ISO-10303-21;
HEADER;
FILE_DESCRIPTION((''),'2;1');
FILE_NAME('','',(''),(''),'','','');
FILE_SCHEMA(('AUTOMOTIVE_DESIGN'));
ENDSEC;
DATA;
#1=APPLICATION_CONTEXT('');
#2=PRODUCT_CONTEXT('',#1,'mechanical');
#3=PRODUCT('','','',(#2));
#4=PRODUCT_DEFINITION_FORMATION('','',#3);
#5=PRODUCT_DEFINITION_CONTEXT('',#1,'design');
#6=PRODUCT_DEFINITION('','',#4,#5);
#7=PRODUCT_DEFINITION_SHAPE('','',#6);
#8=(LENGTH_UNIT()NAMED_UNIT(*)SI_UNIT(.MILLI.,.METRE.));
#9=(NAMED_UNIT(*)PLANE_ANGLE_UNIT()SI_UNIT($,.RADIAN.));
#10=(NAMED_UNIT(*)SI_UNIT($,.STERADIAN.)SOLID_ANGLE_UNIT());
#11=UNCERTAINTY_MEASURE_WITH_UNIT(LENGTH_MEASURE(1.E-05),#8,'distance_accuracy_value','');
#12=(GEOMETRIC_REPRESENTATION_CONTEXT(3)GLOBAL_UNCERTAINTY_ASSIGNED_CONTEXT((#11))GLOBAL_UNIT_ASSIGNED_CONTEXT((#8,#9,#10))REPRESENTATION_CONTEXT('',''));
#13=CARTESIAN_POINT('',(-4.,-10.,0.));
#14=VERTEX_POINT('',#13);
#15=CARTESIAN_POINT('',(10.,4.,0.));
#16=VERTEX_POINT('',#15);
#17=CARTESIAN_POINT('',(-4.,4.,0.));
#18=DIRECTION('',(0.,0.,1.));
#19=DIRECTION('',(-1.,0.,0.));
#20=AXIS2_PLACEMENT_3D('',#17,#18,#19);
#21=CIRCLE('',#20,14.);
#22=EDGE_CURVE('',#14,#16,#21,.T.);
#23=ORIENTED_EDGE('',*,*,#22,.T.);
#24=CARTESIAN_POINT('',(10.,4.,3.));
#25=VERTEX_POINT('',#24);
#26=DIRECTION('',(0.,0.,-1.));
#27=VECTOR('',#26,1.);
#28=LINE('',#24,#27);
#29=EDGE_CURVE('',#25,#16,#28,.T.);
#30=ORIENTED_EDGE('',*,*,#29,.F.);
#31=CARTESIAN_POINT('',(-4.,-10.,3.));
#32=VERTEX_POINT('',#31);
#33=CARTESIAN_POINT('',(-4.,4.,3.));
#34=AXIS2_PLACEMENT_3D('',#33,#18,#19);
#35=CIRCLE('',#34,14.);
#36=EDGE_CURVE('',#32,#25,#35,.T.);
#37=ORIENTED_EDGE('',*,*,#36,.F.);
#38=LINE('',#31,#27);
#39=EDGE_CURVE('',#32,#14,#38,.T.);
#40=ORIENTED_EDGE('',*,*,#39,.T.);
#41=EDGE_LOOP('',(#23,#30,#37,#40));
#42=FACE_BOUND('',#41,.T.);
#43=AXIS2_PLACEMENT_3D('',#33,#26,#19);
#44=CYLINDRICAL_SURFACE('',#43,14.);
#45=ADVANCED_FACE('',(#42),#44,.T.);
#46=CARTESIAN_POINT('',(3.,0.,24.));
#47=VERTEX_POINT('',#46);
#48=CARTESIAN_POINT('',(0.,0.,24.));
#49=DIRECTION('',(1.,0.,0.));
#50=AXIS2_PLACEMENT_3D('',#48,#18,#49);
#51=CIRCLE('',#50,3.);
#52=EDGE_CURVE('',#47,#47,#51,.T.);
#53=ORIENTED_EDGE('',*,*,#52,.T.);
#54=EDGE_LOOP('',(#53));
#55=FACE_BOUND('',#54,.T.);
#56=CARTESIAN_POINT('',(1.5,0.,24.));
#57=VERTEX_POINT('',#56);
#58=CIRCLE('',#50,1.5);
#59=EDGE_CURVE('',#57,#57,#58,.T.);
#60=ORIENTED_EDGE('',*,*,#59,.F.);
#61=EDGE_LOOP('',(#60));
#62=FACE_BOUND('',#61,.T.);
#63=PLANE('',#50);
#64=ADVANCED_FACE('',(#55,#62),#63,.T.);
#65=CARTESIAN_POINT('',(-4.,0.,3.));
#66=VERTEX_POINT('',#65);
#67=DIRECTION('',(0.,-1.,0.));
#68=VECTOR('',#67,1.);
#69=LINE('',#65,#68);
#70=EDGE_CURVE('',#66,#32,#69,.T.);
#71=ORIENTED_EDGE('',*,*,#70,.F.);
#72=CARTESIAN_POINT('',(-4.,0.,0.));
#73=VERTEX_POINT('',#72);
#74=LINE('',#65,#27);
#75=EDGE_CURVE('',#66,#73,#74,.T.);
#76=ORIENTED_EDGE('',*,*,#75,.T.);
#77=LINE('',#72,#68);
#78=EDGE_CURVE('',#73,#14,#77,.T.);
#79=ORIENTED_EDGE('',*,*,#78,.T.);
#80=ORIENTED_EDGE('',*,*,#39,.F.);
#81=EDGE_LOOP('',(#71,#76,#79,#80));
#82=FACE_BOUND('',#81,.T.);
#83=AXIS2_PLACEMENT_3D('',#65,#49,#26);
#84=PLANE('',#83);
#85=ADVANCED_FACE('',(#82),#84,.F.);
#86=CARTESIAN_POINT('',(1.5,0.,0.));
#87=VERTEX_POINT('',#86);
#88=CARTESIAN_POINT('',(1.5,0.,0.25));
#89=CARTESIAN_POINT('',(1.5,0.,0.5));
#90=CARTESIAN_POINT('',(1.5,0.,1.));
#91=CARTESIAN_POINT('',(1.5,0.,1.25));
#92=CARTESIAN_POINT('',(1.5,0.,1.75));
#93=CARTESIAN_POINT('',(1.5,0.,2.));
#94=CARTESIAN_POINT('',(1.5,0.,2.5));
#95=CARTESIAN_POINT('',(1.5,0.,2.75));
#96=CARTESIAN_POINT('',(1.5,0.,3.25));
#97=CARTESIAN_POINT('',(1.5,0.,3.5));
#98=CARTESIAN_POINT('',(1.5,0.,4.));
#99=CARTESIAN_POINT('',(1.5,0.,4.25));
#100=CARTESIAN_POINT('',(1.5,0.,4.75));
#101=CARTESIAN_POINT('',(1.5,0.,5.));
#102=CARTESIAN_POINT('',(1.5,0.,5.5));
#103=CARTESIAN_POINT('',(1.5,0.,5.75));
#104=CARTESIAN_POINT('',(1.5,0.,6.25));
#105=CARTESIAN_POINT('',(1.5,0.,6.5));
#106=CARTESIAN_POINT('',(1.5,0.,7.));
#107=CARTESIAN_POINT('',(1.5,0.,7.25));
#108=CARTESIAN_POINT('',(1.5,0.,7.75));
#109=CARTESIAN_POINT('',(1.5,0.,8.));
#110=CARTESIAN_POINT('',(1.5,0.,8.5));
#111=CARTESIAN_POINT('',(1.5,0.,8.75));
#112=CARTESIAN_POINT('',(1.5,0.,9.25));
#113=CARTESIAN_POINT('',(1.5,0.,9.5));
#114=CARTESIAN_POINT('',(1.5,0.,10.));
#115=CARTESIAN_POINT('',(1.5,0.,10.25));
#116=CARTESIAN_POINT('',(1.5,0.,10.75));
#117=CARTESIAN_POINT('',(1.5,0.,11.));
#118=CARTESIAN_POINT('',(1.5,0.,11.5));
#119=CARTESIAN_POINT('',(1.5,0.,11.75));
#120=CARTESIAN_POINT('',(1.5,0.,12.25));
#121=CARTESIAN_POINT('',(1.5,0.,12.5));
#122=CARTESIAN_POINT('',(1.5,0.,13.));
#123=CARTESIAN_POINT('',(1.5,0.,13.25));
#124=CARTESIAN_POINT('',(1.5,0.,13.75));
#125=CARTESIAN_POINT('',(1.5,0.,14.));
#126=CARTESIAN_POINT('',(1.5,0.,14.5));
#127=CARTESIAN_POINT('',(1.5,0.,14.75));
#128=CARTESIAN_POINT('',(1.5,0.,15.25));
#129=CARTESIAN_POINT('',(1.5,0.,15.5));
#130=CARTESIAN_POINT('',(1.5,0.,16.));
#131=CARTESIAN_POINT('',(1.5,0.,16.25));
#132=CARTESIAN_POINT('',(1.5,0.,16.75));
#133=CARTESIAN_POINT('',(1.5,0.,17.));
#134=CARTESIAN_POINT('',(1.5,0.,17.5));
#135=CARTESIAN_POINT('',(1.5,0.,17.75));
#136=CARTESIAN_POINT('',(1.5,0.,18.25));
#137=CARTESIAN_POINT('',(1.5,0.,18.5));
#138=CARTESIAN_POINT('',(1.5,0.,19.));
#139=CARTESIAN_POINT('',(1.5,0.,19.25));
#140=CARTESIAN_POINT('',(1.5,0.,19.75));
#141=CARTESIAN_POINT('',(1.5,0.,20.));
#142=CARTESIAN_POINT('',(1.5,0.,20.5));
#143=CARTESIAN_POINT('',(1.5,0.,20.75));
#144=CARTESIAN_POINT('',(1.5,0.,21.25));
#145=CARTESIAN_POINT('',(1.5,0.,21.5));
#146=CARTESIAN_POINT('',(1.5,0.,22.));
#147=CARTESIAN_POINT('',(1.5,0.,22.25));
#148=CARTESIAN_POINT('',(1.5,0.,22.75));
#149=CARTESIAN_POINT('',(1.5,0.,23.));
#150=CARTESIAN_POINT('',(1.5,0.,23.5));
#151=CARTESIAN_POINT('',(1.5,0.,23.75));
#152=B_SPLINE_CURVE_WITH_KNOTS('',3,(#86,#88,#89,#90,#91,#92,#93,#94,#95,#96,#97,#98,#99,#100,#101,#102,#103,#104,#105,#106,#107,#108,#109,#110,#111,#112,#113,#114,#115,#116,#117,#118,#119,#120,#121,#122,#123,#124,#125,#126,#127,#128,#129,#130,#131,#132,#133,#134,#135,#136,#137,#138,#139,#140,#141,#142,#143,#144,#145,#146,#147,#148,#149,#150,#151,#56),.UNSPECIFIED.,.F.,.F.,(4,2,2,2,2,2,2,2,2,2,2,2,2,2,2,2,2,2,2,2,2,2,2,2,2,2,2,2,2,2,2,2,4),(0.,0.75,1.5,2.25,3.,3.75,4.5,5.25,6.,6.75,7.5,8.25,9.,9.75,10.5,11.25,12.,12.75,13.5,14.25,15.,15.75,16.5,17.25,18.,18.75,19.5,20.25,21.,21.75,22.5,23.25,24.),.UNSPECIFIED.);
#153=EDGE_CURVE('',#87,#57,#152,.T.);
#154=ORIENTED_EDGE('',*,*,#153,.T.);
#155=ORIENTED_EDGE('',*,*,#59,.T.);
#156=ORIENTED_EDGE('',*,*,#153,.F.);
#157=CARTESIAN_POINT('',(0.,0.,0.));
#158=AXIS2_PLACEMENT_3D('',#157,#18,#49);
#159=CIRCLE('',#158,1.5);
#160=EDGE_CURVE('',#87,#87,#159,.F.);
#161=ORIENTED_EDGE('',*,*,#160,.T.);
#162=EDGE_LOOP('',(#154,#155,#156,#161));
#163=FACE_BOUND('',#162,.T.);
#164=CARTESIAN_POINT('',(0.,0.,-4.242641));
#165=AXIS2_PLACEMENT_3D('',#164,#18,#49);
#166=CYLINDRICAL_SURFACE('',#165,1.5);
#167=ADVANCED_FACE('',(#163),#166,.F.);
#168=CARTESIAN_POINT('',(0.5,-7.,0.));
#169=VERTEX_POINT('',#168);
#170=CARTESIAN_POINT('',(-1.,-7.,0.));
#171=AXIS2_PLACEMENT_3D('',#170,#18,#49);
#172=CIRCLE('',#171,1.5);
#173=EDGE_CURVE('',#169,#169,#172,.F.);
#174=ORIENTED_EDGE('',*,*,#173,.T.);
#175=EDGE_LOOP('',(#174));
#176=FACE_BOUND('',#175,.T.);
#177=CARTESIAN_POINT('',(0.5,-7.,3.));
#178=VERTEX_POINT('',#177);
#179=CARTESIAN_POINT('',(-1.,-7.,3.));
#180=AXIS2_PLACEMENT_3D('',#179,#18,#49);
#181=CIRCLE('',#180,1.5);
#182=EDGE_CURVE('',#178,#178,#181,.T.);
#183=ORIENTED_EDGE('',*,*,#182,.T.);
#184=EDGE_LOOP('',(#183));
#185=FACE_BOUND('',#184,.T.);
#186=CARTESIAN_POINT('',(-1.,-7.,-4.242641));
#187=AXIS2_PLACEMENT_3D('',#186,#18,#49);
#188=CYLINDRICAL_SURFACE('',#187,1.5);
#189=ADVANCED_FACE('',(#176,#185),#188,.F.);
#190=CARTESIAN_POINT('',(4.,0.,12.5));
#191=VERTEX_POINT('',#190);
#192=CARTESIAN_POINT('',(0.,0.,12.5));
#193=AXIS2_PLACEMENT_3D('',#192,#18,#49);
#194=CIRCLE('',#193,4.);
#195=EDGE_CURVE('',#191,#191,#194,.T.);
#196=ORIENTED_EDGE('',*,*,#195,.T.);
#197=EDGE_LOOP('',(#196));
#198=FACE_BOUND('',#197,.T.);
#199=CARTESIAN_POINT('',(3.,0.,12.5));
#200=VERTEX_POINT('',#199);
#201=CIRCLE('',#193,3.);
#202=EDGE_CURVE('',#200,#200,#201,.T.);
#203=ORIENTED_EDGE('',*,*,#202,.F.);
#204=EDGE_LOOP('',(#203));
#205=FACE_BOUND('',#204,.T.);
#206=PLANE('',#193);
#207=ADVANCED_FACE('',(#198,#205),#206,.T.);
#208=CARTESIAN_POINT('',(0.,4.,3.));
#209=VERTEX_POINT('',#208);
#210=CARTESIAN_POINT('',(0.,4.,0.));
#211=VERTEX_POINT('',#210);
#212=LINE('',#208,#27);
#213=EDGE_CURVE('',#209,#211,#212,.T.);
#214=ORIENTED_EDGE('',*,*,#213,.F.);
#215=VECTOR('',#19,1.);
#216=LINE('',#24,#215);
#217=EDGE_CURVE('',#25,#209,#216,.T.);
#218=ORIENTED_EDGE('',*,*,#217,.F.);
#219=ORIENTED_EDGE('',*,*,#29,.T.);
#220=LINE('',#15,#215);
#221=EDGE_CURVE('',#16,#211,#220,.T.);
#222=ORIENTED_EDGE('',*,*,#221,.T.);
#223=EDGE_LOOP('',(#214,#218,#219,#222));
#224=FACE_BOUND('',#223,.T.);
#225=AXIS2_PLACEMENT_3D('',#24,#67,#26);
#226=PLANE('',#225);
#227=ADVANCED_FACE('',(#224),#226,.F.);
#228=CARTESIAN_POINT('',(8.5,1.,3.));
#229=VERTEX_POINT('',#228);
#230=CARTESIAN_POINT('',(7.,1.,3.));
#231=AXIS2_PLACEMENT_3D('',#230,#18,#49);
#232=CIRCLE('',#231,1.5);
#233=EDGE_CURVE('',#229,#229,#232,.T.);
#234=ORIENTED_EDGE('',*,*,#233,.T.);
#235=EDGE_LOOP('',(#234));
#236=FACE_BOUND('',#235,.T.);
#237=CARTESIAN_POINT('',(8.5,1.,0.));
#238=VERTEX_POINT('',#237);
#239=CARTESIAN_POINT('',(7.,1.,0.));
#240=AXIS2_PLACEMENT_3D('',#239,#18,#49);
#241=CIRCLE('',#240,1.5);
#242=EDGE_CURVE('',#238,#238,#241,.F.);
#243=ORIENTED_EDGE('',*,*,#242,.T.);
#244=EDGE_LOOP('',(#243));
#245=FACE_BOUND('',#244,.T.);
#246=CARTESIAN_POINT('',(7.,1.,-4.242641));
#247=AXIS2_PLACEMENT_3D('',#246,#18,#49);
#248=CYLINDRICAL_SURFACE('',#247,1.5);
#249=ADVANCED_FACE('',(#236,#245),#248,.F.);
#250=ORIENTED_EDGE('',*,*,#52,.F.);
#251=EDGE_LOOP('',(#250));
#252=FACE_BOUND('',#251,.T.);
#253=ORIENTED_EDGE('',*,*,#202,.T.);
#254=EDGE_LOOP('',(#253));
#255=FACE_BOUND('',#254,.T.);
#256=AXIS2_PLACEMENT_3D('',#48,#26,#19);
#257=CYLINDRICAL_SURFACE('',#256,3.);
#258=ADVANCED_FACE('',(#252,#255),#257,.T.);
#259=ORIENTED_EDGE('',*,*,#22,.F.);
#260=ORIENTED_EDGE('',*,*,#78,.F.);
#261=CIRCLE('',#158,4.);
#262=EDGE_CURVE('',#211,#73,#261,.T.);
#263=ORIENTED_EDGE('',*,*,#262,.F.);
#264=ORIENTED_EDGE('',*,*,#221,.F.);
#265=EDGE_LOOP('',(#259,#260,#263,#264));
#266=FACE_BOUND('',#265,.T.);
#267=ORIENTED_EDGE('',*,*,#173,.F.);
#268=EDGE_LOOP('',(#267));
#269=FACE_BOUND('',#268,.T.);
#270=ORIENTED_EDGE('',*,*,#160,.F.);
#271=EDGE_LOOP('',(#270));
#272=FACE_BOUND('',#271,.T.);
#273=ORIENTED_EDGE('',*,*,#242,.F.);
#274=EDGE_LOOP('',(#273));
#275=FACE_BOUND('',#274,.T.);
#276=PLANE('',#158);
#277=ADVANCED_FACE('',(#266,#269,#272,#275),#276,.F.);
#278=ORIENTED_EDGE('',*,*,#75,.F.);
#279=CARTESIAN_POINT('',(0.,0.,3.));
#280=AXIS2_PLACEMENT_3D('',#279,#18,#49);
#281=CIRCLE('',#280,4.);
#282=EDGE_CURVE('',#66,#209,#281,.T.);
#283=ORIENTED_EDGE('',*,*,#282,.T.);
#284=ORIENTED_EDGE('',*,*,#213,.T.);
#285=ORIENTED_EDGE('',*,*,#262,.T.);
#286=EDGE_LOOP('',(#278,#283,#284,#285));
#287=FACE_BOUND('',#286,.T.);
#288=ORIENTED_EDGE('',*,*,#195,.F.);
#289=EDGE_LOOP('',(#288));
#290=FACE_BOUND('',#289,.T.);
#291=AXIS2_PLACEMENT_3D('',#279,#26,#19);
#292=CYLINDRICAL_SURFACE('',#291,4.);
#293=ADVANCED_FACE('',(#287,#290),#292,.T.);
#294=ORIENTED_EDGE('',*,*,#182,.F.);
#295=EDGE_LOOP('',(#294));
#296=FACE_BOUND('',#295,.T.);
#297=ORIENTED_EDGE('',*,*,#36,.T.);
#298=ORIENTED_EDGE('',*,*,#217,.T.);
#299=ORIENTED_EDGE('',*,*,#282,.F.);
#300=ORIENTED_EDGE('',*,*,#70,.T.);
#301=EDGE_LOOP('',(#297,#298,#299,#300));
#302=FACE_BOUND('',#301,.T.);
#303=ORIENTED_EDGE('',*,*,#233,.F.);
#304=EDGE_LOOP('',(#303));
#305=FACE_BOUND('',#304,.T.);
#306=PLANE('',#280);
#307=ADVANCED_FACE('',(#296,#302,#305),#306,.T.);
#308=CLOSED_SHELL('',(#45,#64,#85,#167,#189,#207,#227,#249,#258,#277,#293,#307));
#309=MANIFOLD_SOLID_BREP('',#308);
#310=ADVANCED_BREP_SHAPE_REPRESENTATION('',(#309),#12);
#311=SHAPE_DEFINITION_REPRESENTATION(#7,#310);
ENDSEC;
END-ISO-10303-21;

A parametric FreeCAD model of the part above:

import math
import FreeCAD as App
import Part
import Sketcher

V = App.Vector
Q = App.Units.Quantity

doc = App.newDocument("Part")
body = doc.addObject("PartDesign::Body", "Body")

sketch1 = body.newObject("Sketcher::SketchObject", "Sketch")
sketch1.AttachmentSupport = (doc.getObject("XY_Plane"), [""])
sketch1.MapMode = "FlatFace"
sketch1.addGeometry([
    Part.LineSegment(V(10, 4, 0), V(0, 4, 0)),
    Part.ArcOfCircle(Part.Circle(V(0, 0, 0), V(0, 0, 1), 4), math.radians(90), math.radians(180)),
    Part.LineSegment(V(-4, 0, 0), V(-4, -10, 0)),
    Part.ArcOfCircle(Part.Circle(V(-4, 4, 0), V(0, 0, 1), 14), math.radians(-90), math.radians(0)),
], False)
sketch1.addConstraint([
    Sketcher.Constraint("Tangent", 0, 2, 1, 1),
    Sketcher.Constraint("Tangent", 1, 2, 2, 1),
    Sketcher.Constraint("Coincident", 2, 2, 3, 1),
    Sketcher.Constraint("Coincident", 3, 2, 0, 1),
    Sketcher.Constraint("Horizontal", 0),
    Sketcher.Constraint("Vertical", 2),
    Sketcher.Constraint("Coincident", 1, 3, -1, 1),
    Sketcher.Constraint("Horizontal", 3, 3, 0, 2),
    Sketcher.Constraint("Vertical", 3, 3, 1, 2),
    Sketcher.Constraint("Radius", 1, Q("4 mm")),
    Sketcher.Constraint("Radius", 3, Q("14 mm")),
])
pad1 = body.newObject("PartDesign::Pad", "Pad")
pad1.Profile = sketch1
pad1.Length = 3

sketch2 = body.newObject("Sketcher::SketchObject", "Sketch001")
sketch2.AttachmentSupport = (doc.getObject("XY_Plane"), [""])
sketch2.MapMode = "FlatFace"
sketch2.AttachmentOffset = App.Placement(V(0, 0, 3), App.Rotation())
sketch2.addGeometry(Part.Circle(V(0, 0, 0), V(0, 0, 1), 4), False)
sketch2.addConstraint([
    Sketcher.Constraint("Coincident", 0, 3, -1, 1),
    Sketcher.Constraint("Diameter", 0, Q("8 mm")),
])
pad2 = body.newObject("PartDesign::Pad", "Pad001")
pad2.Profile = sketch2
pad2.Length = 9.5

sketch3 = body.newObject("Sketcher::SketchObject", "Sketch002")
sketch3.AttachmentSupport = (doc.getObject("XY_Plane"), [""])
sketch3.MapMode = "FlatFace"
sketch3.AttachmentOffset = App.Placement(V(0, 0, 12.5), App.Rotation())
sketch3.addGeometry(Part.Circle(V(0, 0, 0), V(0, 0, 1), 3), False)
sketch3.addConstraint([
    Sketcher.Constraint("Coincident", 0, 3, -1, 1),
    Sketcher.Constraint("Diameter", 0, Q("6 mm")),
])
pad3 = body.newObject("PartDesign::Pad", "Pad002")
pad3.Profile = sketch3
pad3.Length = 11.5

sketch4 = body.newObject("Sketcher::SketchObject", "Sketch003")
sketch4.AttachmentSupport = (doc.getObject("XY_Plane"), [""])
sketch4.MapMode = "FlatFace"
sketch4.AttachmentOffset = App.Placement(V(0, 0, 24), App.Rotation())
sketch4.addGeometry(Part.Circle(V(0, 0, 0), V(0, 0, 1), 1.5), False)
sketch4.addConstraint([
    Sketcher.Constraint("Coincident", 0, 3, -1, 1),
    Sketcher.Constraint("Diameter", 0, Q("3 mm")),
])
pocket1 = body.newObject("PartDesign::Pocket", "Pocket")
pocket1.Profile = sketch4
pocket1.Length = 24

sketch5 = body.newObject("Sketcher::SketchObject", "Sketch004")
sketch5.AttachmentSupport = (doc.getObject("XY_Plane"), [""])
sketch5.MapMode = "FlatFace"
sketch5.AttachmentOffset = App.Placement(V(0, 0, 3), App.Rotation())
sketch5.addGeometry([
    Part.Circle(V(7, 1, 0), V(0, 0, 1), 1.5),
    Part.Circle(V(-1, -7, 0), V(0, 0, 1), 1.5),
], False)
sketch5.addConstraint([
    Sketcher.Constraint("Equal", 0, 1),
    Sketcher.Constraint("Diameter", 0, Q("3 mm")),
    Sketcher.Constraint("DistanceX", -1, 1, 0, 3, Q("7 mm")),
    Sketcher.Constraint("DistanceY", -1, 1, 0, 3, Q("1 mm")),
    Sketcher.Constraint("DistanceX", 1, 3, -1, 1, Q("1 mm")),
    Sketcher.Constraint("DistanceY", 1, 3, -1, 1, Q("7 mm")),
])
pocket2 = body.newObject("PartDesign::Pocket", "Pocket001")
pocket2.Profile = sketch5
pocket2.Length = 3

doc.recompute()
